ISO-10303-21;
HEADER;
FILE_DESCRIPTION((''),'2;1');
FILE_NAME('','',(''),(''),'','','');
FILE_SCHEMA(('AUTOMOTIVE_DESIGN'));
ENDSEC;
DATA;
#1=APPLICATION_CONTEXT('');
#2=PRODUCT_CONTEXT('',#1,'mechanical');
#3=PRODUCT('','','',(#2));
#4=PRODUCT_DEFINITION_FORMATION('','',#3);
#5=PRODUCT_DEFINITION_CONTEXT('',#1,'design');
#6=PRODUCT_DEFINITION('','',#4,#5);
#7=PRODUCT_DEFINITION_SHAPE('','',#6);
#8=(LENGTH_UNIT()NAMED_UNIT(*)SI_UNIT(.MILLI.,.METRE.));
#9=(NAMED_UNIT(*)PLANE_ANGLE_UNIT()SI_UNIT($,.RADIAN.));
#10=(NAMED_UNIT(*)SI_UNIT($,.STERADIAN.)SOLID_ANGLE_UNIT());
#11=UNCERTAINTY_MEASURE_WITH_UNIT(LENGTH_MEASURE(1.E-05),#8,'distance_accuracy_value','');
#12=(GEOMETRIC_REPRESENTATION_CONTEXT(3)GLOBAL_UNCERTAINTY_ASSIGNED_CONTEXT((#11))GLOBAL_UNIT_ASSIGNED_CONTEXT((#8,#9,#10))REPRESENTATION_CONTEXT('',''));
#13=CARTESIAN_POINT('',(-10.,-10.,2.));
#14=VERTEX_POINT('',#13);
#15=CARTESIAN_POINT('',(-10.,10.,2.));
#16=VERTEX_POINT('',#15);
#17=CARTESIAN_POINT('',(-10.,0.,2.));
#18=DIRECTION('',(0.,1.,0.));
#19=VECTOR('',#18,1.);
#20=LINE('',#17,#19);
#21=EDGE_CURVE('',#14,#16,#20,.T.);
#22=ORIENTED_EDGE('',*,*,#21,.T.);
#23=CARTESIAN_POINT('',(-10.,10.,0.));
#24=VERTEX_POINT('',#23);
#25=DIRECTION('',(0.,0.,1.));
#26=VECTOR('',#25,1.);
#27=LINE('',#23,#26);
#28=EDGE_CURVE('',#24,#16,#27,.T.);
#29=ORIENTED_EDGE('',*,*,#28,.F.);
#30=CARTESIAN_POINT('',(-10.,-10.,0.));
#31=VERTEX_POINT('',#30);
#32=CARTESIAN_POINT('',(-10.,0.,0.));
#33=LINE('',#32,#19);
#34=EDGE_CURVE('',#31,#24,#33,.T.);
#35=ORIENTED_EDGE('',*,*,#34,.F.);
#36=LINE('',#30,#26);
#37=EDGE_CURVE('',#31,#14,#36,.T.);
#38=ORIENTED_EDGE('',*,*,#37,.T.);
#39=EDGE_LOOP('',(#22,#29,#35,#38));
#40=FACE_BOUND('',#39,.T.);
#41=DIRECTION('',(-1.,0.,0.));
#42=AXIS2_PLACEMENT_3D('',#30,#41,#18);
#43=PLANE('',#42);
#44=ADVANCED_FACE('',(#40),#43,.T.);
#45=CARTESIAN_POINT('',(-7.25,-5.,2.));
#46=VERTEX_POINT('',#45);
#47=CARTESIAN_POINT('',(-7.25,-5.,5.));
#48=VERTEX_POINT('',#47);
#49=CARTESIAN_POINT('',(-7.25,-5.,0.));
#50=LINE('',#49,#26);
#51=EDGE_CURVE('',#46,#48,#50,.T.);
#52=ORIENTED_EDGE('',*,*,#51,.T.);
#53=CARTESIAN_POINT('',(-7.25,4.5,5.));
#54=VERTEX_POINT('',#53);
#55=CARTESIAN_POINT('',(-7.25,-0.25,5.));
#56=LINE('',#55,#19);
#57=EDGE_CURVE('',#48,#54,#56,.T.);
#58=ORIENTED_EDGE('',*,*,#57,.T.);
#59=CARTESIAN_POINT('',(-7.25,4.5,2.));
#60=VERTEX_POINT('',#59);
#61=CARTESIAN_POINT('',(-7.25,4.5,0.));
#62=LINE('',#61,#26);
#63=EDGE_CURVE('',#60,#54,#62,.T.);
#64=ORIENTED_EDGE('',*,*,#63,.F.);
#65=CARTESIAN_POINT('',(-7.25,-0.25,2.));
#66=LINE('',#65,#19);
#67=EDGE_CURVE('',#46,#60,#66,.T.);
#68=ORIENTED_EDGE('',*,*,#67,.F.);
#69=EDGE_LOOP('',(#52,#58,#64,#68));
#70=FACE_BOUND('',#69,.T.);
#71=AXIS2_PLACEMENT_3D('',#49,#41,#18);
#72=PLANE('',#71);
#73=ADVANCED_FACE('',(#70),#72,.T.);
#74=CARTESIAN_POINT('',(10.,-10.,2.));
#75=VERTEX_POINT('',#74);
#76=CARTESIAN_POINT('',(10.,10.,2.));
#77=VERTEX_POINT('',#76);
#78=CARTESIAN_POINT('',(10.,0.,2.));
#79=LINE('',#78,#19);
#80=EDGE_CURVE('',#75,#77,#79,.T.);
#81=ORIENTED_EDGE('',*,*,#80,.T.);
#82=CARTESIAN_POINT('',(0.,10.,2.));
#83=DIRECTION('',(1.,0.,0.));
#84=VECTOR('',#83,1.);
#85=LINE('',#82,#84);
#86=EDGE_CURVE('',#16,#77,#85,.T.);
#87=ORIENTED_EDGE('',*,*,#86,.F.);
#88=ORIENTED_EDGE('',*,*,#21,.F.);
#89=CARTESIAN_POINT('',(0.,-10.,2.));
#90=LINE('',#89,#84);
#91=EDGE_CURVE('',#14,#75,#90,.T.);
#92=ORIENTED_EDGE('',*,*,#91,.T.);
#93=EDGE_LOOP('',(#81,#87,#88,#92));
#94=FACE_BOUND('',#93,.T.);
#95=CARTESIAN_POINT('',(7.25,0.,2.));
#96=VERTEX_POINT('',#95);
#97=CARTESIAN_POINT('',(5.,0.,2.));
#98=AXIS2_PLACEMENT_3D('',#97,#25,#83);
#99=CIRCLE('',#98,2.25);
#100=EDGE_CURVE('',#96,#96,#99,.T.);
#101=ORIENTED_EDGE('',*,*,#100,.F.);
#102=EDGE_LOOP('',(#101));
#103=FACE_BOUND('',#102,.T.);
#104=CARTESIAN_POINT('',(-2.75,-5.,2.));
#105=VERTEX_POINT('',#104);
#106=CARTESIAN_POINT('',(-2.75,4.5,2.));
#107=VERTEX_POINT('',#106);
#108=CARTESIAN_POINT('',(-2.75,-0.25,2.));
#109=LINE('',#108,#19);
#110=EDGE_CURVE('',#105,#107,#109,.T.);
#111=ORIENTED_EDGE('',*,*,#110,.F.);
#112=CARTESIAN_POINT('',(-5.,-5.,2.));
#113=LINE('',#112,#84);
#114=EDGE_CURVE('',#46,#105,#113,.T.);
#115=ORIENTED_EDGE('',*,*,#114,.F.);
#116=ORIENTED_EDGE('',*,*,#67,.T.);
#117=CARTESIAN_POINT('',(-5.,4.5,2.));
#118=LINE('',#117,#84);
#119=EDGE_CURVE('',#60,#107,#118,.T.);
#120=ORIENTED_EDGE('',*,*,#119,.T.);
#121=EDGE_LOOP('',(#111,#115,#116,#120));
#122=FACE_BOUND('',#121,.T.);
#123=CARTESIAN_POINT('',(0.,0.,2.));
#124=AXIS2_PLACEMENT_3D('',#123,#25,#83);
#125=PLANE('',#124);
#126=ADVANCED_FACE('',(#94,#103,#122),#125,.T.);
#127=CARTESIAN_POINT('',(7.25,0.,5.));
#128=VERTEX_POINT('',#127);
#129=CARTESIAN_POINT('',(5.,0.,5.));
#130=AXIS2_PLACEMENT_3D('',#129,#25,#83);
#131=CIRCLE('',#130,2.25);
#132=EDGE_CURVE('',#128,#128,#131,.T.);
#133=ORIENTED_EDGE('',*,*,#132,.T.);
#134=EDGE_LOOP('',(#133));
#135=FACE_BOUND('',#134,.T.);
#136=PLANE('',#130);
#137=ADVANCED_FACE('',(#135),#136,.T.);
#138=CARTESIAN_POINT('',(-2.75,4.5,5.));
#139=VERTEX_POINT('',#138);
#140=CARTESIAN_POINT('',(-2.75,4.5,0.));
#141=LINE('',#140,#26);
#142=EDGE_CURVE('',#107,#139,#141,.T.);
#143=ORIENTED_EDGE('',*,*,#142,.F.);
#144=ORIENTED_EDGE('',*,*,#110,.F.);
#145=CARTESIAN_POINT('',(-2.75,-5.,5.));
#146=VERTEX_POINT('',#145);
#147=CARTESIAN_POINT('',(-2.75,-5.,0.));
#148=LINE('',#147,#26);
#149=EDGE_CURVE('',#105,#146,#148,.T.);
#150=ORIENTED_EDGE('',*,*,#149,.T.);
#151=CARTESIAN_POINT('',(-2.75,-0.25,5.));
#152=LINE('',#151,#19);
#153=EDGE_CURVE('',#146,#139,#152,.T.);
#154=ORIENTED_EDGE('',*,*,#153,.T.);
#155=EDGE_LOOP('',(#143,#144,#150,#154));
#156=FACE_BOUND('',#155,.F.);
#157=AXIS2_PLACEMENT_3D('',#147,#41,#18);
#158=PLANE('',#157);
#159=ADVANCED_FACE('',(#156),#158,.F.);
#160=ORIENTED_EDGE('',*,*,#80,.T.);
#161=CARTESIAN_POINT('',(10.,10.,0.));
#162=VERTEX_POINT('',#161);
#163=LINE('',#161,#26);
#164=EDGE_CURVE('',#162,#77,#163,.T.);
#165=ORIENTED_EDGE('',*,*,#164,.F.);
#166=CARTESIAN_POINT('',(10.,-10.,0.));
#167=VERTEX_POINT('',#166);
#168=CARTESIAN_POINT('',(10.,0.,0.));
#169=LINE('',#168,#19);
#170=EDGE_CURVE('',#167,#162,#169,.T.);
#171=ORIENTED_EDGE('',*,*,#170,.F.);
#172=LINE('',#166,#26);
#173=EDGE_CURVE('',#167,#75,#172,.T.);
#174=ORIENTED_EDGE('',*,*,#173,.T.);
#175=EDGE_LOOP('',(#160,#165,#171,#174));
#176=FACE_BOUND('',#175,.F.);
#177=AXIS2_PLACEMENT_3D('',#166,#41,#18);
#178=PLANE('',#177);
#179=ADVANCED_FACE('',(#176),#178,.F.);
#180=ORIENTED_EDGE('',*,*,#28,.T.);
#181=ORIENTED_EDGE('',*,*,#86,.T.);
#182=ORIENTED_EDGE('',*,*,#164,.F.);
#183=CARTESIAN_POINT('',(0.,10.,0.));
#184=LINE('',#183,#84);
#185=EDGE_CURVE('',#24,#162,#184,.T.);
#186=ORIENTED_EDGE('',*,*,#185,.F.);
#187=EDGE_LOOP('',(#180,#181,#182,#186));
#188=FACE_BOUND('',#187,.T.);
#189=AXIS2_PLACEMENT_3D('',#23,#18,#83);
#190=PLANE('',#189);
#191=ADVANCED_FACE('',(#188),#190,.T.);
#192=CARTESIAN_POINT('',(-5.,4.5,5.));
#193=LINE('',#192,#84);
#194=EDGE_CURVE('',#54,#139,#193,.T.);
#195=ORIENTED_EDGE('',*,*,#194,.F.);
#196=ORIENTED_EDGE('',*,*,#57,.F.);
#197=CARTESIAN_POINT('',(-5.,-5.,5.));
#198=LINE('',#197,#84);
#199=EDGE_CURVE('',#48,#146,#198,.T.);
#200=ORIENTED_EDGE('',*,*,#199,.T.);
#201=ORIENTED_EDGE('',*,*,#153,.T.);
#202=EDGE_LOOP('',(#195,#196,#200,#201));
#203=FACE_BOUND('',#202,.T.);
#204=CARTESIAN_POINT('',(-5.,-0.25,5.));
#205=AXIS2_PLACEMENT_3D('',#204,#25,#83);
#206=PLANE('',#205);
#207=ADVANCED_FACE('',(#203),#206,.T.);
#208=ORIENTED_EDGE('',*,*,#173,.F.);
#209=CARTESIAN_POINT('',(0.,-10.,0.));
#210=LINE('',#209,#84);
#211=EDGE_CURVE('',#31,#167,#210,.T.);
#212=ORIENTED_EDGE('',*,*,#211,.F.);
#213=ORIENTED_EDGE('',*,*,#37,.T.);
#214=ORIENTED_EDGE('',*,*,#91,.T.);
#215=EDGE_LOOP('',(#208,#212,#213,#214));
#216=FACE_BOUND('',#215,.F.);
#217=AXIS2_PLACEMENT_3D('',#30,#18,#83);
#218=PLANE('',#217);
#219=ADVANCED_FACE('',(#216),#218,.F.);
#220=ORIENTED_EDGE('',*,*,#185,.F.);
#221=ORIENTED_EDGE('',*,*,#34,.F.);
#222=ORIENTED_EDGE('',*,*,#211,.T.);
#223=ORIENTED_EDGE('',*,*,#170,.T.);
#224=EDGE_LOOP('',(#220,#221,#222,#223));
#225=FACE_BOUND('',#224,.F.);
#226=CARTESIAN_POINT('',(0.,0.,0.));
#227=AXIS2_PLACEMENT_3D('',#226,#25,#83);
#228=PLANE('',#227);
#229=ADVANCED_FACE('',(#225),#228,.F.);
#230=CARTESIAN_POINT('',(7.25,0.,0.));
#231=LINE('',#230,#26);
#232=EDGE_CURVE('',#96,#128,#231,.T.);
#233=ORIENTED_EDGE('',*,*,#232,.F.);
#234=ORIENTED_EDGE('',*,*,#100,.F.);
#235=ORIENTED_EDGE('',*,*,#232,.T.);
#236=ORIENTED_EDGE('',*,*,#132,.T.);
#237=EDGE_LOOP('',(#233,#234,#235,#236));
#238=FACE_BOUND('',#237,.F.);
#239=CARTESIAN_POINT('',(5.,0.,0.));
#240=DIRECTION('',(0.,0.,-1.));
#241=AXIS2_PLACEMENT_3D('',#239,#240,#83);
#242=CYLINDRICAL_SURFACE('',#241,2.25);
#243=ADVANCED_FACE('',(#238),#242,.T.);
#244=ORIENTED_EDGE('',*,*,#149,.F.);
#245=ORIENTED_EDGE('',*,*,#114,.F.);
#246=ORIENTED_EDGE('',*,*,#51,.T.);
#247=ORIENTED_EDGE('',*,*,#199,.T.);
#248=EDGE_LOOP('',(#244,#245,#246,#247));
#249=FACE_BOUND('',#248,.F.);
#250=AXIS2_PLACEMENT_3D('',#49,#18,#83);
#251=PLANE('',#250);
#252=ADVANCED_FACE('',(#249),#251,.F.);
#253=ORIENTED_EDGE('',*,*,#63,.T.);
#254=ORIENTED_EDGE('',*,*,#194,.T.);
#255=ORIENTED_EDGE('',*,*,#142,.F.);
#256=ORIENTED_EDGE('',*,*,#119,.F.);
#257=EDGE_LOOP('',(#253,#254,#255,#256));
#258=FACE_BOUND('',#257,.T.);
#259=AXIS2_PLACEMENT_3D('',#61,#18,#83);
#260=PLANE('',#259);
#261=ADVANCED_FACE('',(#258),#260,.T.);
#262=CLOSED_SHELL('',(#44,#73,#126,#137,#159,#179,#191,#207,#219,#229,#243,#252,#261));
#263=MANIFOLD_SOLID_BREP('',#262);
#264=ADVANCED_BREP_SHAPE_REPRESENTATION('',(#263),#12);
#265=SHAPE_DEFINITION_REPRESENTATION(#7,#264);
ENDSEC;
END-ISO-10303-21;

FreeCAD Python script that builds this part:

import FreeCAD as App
import Part
import Sketcher
Q = App.Units.Quantity

doc = App.newDocument("Part")
body = doc.addObject("PartDesign::Body", "Body")

# Sketch on XY plane
sketch1 = doc.addObject("Sketcher::SketchObject", "Sketch")
body.addObject(sketch1)
sketch1.AttachmentSupport = (doc.XY_Plane, [""])
sketch1.MapMode = "FlatFace"
sketch1.addGeometry([
    Part.LineSegment(App.Vector(-10, 10, 0), App.Vector(-10, -10, 0)),  # 0
    Part.LineSegment(App.Vector(-10, -10, 0), App.Vector(10, -10, 0)),  # 1
    Part.LineSegment(App.Vector(10, -10, 0), App.Vector(10, 10, 0)),  # 2
    Part.LineSegment(App.Vector(10, 10, 0), App.Vector(-10, 10, 0)),  # 3
    Part.LineSegment(App.Vector(-2.75, -5, 0), App.Vector(-7.25, -5, 0)),  # 4
    Part.LineSegment(App.Vector(-7.25, -5, 0), App.Vector(-7.25, 4.5, 0)),  # 5
    Part.LineSegment(App.Vector(-7.25, 4.5, 0), App.Vector(-2.75, 4.5, 0)),  # 6
    Part.LineSegment(App.Vector(-2.75, 4.5, 0), App.Vector(-2.75, -5, 0)),  # 7
    Part.Circle(App.Vector(5, 0, 0), App.Vector(0, 0, 1), 2.25),  # 8
], False)
sketch1.addConstraint([
    Sketcher.Constraint("Coincident", 0, 2, 1, 1),
    Sketcher.Constraint("Coincident", 1, 2, 2, 1),
    Sketcher.Constraint("Coincident", 2, 2, 3, 1),
    Sketcher.Constraint("Coincident", 3, 2, 0, 1),
    Sketcher.Constraint("Coincident", 4, 2, 5, 1),
    Sketcher.Constraint("Coincident", 5, 2, 6, 1),
    Sketcher.Constraint("Coincident", 6, 2, 7, 1),
    Sketcher.Constraint("Coincident", 7, 2, 4, 1),
    Sketcher.Constraint("Vertical", 0),
    Sketcher.Constraint("Horizontal", 1),
    Sketcher.Constraint("Vertical", 2),
    Sketcher.Constraint("Horizontal", 3),
    Sketcher.Constraint("Horizontal", 4),
    Sketcher.Constraint("Vertical", 5),
    Sketcher.Constraint("Horizontal", 6),
    Sketcher.Constraint("Vertical", 7),
    Sketcher.Constraint("Symmetric", 0, 2, 2, 2, -1, 1),
    Sketcher.Constraint("PointOnObject", 8, 3, -1),
    Sketcher.Constraint("Equal", 3, 0),
    Sketcher.Constraint("Diameter", 8, Q("4.5 mm")),
    Sketcher.Constraint("DistanceX", 1, 1, 1, 2, Q("20 mm")),
    Sketcher.Constraint("DistanceX", 4, 2, 4, 1, Q("4.5 mm")),
    Sketcher.Constraint("DistanceY", 5, 1, 5, 2, Q("9.5 mm")),
    Sketcher.Constraint("DistanceX", -1, 1, 8, 3, Q("5 mm")),
    Sketcher.Constraint("DistanceY", 4, 2, -1, 1, Q("5 mm")),
    Sketcher.Constraint("DistanceX", 4, 2, -1, 1, Q("7.25 mm")),
])
pad1 = doc.addObject("PartDesign::Pad", "Pad")
body.addObject(pad1)
pad1.Profile = sketch1
pad1.Length = 2

# Sketch on XY plane
sketch2 = doc.addObject("Sketcher::SketchObject", "Sketch001")
body.addObject(sketch2)
sketch2.AttachmentSupport = (doc.XY_Plane, [""])
sketch2.MapMode = "FlatFace"
sketch2.addGeometry([
    Part.LineSegment(App.Vector(-7.25, 4.5, 0), App.Vector(-7.25, -5, 0)),  # 0
    Part.LineSegment(App.Vector(-7.25, -5, 0), App.Vector(-2.75, -5, 0)),  # 1
    Part.LineSegment(App.Vector(-2.75, -5, 0), App.Vector(-2.75, 4.5, 0)),  # 2
    Part.LineSegment(App.Vector(-2.75, 4.5, 0), App.Vector(-7.25, 4.5, 0)),  # 3
    Part.Circle(App.Vector(5, 0, 0), App.Vector(0, 0, 1), 2.25),  # 4
], False)
sketch2.addConstraint([
    Sketcher.Constraint("Coincident", 0, 2, 1, 1),
    Sketcher.Constraint("Coincident", 1, 2, 2, 1),
    Sketcher.Constraint("Coincident", 2, 2, 3, 1),
    Sketcher.Constraint("Coincident", 3, 2, 0, 1),
    Sketcher.Constraint("Vertical", 0),
    Sketcher.Constraint("Horizontal", 1),
    Sketcher.Constraint("Vertical", 2),
    Sketcher.Constraint("Horizontal", 3),
    Sketcher.Constraint("PointOnObject", 4, 3, -1),
    Sketcher.Constraint("Diameter", 4, Q("4.5 mm")),
    Sketcher.Constraint("DistanceX", 1, 1, 1, 2, Q("4.5 mm")),
    Sketcher.Constraint("DistanceY", 0, 2, 0, 1, Q("9.5 mm")),
    Sketcher.Constraint("DistanceX", -1, 1, 4, 3, Q("5 mm")),
    Sketcher.Constraint("DistanceY", 0, 2, -1, 1, Q("5 mm")),
    Sketcher.Constraint("DistanceX", 0, 2, -1, 1, Q("7.25 mm")),
])
pad2 = doc.addObject("PartDesign::Pad", "Pad001")
body.addObject(pad2)
pad2.Profile = sketch2
pad2.Length = 5

doc.recompute()
